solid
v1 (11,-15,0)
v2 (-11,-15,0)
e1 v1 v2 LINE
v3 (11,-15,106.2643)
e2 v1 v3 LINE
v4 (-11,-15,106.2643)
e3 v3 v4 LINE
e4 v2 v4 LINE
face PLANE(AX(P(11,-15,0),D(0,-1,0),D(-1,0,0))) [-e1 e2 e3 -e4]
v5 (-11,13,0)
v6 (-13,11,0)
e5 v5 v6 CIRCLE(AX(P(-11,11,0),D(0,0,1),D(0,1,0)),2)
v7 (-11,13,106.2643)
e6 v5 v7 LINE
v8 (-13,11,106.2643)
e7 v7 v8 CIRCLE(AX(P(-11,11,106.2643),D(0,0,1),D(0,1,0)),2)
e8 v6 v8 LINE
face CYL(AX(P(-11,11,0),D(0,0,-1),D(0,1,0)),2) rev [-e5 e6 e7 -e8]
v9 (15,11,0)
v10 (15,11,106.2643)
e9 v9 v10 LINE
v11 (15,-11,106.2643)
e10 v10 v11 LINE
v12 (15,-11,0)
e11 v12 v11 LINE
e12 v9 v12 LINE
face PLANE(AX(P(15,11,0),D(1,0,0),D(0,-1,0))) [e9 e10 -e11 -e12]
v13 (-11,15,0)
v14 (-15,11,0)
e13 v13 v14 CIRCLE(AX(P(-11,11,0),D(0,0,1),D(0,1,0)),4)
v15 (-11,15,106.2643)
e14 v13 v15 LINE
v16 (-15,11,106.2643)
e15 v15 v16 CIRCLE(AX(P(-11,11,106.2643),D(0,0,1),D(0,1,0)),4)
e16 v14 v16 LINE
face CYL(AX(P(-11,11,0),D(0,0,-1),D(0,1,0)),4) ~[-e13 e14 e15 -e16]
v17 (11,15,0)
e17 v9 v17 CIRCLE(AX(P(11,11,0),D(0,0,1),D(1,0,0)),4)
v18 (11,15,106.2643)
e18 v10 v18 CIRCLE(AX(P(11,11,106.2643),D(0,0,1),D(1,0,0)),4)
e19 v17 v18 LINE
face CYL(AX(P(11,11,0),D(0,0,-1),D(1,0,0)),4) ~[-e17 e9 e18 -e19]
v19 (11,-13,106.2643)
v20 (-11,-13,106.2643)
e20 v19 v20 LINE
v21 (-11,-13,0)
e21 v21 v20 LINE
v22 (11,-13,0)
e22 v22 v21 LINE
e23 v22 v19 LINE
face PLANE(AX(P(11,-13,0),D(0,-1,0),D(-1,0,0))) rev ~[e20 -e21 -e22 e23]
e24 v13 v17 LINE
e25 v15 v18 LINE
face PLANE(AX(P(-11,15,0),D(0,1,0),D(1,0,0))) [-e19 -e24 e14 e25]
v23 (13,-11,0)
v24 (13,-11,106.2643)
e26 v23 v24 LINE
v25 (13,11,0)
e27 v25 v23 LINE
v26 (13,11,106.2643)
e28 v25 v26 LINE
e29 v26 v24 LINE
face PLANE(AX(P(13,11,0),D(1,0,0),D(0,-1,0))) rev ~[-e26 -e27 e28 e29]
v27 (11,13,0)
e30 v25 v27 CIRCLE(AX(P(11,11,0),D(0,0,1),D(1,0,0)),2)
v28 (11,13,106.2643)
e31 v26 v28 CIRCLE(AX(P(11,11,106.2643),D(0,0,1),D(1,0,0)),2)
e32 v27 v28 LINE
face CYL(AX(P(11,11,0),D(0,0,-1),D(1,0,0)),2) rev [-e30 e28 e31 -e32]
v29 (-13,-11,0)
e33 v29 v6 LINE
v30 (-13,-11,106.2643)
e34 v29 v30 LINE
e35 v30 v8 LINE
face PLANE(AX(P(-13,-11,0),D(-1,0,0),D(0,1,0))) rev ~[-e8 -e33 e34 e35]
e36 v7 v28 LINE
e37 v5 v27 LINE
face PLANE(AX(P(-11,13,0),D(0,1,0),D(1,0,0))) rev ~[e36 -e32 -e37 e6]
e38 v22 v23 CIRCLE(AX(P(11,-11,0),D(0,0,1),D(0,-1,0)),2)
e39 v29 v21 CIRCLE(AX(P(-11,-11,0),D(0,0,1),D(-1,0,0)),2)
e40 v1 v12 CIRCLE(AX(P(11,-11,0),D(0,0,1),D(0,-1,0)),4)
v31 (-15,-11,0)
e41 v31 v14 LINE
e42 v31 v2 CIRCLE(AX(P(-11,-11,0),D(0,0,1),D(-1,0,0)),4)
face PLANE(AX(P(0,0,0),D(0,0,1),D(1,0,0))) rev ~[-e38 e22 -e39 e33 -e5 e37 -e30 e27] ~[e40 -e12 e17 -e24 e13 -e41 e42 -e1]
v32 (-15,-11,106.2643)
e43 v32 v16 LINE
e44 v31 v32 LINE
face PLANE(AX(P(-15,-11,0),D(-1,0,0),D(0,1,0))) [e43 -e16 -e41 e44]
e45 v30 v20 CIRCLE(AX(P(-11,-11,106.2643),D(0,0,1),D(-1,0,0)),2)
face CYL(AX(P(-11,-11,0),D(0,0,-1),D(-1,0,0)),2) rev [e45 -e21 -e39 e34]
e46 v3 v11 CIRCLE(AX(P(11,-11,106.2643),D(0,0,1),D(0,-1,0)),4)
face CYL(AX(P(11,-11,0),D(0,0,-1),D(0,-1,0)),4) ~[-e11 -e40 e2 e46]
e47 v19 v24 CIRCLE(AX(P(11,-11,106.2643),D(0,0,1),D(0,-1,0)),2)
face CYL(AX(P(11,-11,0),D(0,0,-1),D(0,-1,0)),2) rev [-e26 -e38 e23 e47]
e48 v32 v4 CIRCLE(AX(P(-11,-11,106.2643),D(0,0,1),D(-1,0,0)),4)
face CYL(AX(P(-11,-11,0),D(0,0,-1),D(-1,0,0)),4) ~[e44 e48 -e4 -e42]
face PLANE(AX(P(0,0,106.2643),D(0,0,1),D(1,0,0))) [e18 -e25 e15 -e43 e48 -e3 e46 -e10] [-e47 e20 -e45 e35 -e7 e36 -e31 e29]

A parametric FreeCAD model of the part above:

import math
import FreeCAD as App
import Part
import Sketcher
Q = App.Units.Quantity

doc = App.newDocument("Part")
body = doc.addObject("PartDesign::Body", "Body")

sketch1 = doc.addObject("Sketcher::SketchObject", "Sketch")
body.addObject(sketch1)
sketch1.AttachmentSupport = (doc.XY_Plane, [""])
sketch1.MapMode = "FlatFace"
sketch1.addGeometry(Part.LineSegment(App.Vector(-15, 11, 0), App.Vector(-15, -11, 0)), False)
sketch1.addGeometry(Part.ArcOfCircle(Part.Circle(App.Vector(-11, -11, 0), App.Vector(0, 0, 1), 4), math.radians(180), math.radians(270)), False)
sketch1.addGeometry(Part.LineSegment(App.Vector(-11, -15, 0), App.Vector(11, -15, 0)), False)
sketch1.addGeometry(Part.ArcOfCircle(Part.Circle(App.Vector(11, -11, 0), App.Vector(0, 0, 1), 4), math.radians(-90), math.radians(0)), False)
sketch1.addGeometry(Part.LineSegment(App.Vector(15, -11, 0), App.Vector(15, 11, 0)), False)
sketch1.addGeometry(Part.ArcOfCircle(Part.Circle(App.Vector(11, 11, 0), App.Vector(0, 0, 1), 4), math.radians(0), math.radians(90)), False)
sketch1.addGeometry(Part.LineSegment(App.Vector(11, 15, 0), App.Vector(-11, 15, 0)), False)
sketch1.addGeometry(Part.ArcOfCircle(Part.Circle(App.Vector(-11, 11, 0), App.Vector(0, 0, 1), 4), math.radians(90), math.radians(180)), False)
sketch1.addGeometry(Part.ArcOfCircle(Part.Circle(App.Vector(-11, 11, 0), App.Vector(0, 0, 1), 2), math.radians(90), math.radians(180)), False)
sketch1.addGeometry(Part.LineSegment(App.Vector(-11, 13, 0), App.Vector(11, 13, 0)), False)
sketch1.addGeometry(Part.ArcOfCircle(Part.Circle(App.Vector(11, 11, 0), App.Vector(0, 0, 1), 2), math.radians(0), math.radians(90)), False)
sketch1.addGeometry(Part.LineSegment(App.Vector(13, 11, 0), App.Vector(13, -11, 0)), False)
sketch1.addGeometry(Part.ArcOfCircle(Part.Circle(App.Vector(11, -11, 0), App.Vector(0, 0, 1), 2), math.radians(-90), math.radians(0)), False)
sketch1.addGeometry(Part.LineSegment(App.Vector(11, -13, 0), App.Vector(-11, -13, 0)), False)
sketch1.addGeometry(Part.ArcOfCircle(Part.Circle(App.Vector(-11, -11, 0), App.Vector(0, 0, 1), 2), math.radians(180), math.radians(270)), False)
sketch1.addGeometry(Part.LineSegment(App.Vector(-13, -11, 0), App.Vector(-13, 11, 0)), False)
sketch1.addConstraint(Sketcher.Constraint("Tangent", 0, 2, 1, 1))
sketch1.addConstraint(Sketcher.Constraint("Tangent", 1, 2, 2, 1))
sketch1.addConstraint(Sketcher.Constraint("Tangent", 2, 2, 3, 1))
sketch1.addConstraint(Sketcher.Constraint("Tangent", 3, 2, 4, 1))
sketch1.addConstraint(Sketcher.Constraint("Tangent", 4, 2, 5, 1))
sketch1.addConstraint(Sketcher.Constraint("Tangent", 5, 2, 6, 1))
sketch1.addConstraint(Sketcher.Constraint("Tangent", 6, 2, 7, 1))
sketch1.addConstraint(Sketcher.Constraint("Tangent", 7, 2, 0, 1))
sketch1.addConstraint(Sketcher.Constraint("Tangent", 8, 1, 9, 1))
sketch1.addConstraint(Sketcher.Constraint("Tangent", 9, 2, 10, 2))
sketch1.addConstraint(Sketcher.Constraint("Tangent", 10, 1, 11, 1))
sketch1.addConstraint(Sketcher.Constraint("Tangent", 11, 2, 12, 2))
sketch1.addConstraint(Sketcher.Constraint("Tangent", 12, 1, 13, 1))
sketch1.addConstraint(Sketcher.Constraint("Tangent", 13, 2, 14, 2))
sketch1.addConstraint(Sketcher.Constraint("Tangent", 14, 1, 15, 1))
sketch1.addConstraint(Sketcher.Constraint("Tangent", 15, 2, 8, 2))
sketch1.addConstraint(Sketcher.Constraint("Vertical", 0))
sketch1.addConstraint(Sketcher.Constraint("Horizontal", 2))
sketch1.addConstraint(Sketcher.Constraint("Vertical", 4))
sketch1.addConstraint(Sketcher.Constraint("Horizontal", 6))
sketch1.addConstraint(Sketcher.Constraint("Horizontal", 9))
sketch1.addConstraint(Sketcher.Constraint("Vertical", 11))
sketch1.addConstraint(Sketcher.Constraint("Horizontal", 13))
sketch1.addConstraint(Sketcher.Constraint("Vertical", 15))
sketch1.addConstraint(Sketcher.Constraint("Coincident", 8, 3, 7, 3))
sketch1.addConstraint(Sketcher.Constraint("Coincident", 10, 3, 5, 3))
sketch1.addConstraint(Sketcher.Constraint("Coincident", 12, 3, 3, 3))
sketch1.addConstraint(Sketcher.Constraint("Equal", 1, 3))
sketch1.addConstraint(Sketcher.Constraint("Equal", 3, 5))
sketch1.addConstraint(Sketcher.Constraint("Equal", 5, 7))
sketch1.addConstraint(Sketcher.Constraint("Equal", 12, 14))
sketch1.addConstraint(Sketcher.Constraint("Symmetric", 1, 3, 5, 3, -1, 1))
sketch1.addConstraint(Sketcher.Constraint("Equal", 13, 0))
sketch1.addConstraint(Sketcher.Constraint("Radius", 1, Q("4 mm")))
sketch1.addConstraint(Sketcher.Constraint("Radius", 8, Q("2 mm")))
sketch1.addConstraint(Sketcher.Constraint("DistanceX", 0, 2, -1, 1, Q("15 mm")))
pad1 = doc.addObject("PartDesign::Pad", "Pad")
body.addObject(pad1)
pad1.Profile = sketch1
pad1.Length = 106.2643

doc.recompute()
